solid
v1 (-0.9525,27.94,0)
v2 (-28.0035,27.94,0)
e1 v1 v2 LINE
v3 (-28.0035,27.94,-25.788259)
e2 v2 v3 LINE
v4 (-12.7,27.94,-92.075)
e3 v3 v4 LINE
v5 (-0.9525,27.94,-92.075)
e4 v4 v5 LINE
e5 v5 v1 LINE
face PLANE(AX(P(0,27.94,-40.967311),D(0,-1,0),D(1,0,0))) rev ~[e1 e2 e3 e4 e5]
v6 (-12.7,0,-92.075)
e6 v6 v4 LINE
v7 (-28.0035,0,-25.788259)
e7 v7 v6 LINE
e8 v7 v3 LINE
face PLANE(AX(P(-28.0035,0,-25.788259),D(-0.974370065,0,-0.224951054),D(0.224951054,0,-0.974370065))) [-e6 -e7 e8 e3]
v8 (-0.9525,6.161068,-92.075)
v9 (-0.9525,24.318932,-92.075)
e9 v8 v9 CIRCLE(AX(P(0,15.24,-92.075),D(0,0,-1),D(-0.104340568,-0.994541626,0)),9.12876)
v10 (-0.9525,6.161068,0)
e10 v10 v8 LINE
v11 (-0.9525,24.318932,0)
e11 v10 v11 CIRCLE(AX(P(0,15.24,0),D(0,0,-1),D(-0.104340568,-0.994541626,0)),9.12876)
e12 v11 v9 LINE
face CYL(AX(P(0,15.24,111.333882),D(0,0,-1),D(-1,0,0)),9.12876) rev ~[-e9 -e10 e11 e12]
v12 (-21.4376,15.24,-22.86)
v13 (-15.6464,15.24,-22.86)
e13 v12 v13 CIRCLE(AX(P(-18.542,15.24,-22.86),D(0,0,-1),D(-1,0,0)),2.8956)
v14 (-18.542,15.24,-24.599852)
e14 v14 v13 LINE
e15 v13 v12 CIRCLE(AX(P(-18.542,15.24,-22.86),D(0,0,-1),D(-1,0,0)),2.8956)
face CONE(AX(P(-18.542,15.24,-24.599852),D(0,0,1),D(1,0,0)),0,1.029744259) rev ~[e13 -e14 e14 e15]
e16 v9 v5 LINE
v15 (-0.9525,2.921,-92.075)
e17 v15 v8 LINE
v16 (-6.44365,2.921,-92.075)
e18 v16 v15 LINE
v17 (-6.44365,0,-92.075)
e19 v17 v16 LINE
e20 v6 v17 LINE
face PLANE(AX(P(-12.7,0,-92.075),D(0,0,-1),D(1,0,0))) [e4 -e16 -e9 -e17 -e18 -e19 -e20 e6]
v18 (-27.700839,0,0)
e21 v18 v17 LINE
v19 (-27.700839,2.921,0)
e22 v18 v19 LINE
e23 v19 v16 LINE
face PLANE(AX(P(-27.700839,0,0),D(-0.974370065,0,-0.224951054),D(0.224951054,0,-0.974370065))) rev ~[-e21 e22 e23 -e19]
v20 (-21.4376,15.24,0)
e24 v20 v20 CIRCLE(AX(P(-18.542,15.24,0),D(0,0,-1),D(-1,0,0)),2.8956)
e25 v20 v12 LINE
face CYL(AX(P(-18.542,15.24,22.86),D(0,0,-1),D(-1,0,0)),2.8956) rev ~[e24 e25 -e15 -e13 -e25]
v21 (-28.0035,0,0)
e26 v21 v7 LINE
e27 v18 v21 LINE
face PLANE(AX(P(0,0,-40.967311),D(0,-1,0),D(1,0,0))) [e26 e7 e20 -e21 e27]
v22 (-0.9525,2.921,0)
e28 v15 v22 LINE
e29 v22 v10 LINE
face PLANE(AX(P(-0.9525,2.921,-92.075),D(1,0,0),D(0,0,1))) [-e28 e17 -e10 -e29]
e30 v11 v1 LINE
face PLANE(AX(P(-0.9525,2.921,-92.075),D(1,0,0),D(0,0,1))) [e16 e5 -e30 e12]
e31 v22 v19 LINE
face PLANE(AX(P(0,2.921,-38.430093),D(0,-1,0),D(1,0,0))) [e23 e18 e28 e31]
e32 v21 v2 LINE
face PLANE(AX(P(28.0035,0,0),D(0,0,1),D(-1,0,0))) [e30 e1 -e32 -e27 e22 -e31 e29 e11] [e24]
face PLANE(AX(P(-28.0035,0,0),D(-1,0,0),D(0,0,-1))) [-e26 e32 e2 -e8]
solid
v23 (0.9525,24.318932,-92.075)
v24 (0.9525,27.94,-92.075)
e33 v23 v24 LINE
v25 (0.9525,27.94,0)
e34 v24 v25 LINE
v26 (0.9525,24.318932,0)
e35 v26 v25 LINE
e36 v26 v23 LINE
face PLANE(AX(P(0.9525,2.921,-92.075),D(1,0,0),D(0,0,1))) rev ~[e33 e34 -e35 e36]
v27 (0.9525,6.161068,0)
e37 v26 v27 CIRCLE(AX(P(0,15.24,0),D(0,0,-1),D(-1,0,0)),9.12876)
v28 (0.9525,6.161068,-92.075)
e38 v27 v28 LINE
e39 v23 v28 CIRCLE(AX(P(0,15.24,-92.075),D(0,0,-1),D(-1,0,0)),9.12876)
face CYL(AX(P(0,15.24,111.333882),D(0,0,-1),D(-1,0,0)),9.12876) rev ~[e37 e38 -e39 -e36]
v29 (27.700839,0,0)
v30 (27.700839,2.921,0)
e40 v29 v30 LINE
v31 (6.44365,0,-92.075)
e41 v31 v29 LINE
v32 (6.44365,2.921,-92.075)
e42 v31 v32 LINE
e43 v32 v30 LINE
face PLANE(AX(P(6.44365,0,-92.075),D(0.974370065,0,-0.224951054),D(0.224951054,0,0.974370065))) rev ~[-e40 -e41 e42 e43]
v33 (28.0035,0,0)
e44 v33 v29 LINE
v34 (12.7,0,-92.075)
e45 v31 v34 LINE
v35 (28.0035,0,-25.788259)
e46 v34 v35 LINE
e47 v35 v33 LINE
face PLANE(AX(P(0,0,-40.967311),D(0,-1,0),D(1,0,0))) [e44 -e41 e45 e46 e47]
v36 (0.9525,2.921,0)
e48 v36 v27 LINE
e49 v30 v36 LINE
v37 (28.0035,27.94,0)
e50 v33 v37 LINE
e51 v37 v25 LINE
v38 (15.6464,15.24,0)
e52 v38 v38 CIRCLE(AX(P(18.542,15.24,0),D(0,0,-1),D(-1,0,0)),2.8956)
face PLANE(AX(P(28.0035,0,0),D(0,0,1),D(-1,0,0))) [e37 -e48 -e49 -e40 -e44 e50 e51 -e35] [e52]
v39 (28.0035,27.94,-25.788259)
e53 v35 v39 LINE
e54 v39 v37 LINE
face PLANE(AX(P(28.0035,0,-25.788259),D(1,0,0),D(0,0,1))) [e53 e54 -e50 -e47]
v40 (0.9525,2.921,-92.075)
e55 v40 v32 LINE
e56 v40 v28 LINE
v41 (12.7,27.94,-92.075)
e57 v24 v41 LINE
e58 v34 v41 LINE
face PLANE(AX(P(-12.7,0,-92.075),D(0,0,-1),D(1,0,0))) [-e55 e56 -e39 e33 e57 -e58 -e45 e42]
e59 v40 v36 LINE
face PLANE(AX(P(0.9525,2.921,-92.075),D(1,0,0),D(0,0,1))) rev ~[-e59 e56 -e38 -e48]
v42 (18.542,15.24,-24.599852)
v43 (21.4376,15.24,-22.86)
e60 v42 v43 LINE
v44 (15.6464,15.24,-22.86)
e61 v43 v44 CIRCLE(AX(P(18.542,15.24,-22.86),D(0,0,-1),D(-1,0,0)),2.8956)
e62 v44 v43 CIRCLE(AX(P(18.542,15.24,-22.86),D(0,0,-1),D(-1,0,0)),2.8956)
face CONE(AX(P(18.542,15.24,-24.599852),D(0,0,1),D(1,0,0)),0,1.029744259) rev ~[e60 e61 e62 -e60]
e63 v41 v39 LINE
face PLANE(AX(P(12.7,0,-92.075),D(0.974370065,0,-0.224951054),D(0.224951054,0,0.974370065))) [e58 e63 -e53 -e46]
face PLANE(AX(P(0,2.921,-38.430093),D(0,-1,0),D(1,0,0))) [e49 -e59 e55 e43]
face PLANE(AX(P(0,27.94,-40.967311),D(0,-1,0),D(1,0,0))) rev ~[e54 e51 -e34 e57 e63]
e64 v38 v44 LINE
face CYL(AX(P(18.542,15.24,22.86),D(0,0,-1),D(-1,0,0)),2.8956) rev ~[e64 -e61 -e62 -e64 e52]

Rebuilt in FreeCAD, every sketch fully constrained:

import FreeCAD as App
import Part
import Sketcher
from FreeCAD import Vector
Q = App.Units.Quantity


def add_polygon(sketch, points):
    """Adds a closed chain of lines whose ends are joined by coincident constraints."""
    first, n = sketch.GeometryCount, len(points)
    for a, b in zip(points, points[1:] + points[:1]):
        sketch.addGeometry(Part.LineSegment(App.Vector(*a, 0), App.Vector(*b, 0)), False)
    for i in range(n):
        sketch.addConstraint(Sketcher.Constraint("Coincident", first + i, 2, first + (i + 1) % n, 1))

doc = App.newDocument("Part")
body = doc.addObject("PartDesign::Body", "Body")
body.AllowCompound = True

sketch1 = body.newObject("Sketcher::SketchObject", "Sketch")
sketch1.AttachmentSupport = (doc.getObject("XZ_Plane"), [""])
sketch1.MapMode = "FlatFace"
add_polygon(sketch1, [(28, 0), (-28, 0), (-28, -26), (-13, -92), (13, -92), (28, -26)])
sketch1.addConstraint(Sketcher.Constraint("Horizontal", 0))
sketch1.addConstraint(Sketcher.Constraint("Vertical", 1))
sketch1.addConstraint(Sketcher.Constraint("Horizontal", 3))
sketch1.addConstraint(Sketcher.Constraint("Vertical", 5))
sketch1.addConstraint(Sketcher.Constraint("Symmetric", 0, 2, 5, 2, -1, 1))
sketch1.addConstraint(Sketcher.Constraint("Horizontal", 1, 2, 4, 2))
sketch1.addConstraint(Sketcher.Constraint("Equal", 2, 4))
sketch1.addConstraint(Sketcher.Constraint("DistanceX", 3, 1, 3, 2, Q("1 in")))
sketch1.addConstraint(Sketcher.Constraint("Angle", 2, Q("-77 deg")))
sketch1.addConstraint(Sketcher.Constraint("DistanceX", 0, 2, 0, 1, Q("2.205 in")))
sketch1.addConstraint(Sketcher.Constraint("DistanceY", 2, 2, -1, 1, Q("3.625 in")))
pad1 = body.newObject("PartDesign::Pad", "Pad")
pad1.Profile = sketch1
pad1.Length = Q("1.1 in")
pad1.Reversed = True

sketch2 = body.newObject("Sketcher::SketchObject", "Sketch001")
sketch2.AttachmentSupport = (doc.getObject("XZ_Plane"), [""])
sketch2.MapMode = "FlatFace"
add_polygon(sketch2, [(-28, 0), (-6, -92), (6, -92), (28, 0)])
sketch2.addConstraint(Sketcher.Constraint("Horizontal", 1))
sketch2.addConstraint(Sketcher.Constraint("Horizontal", 3))
sketch2.addConstraint(Sketcher.Constraint("Symmetric", 2, 2, 3, 2, -1, 1))
sketch2.addConstraint(Sketcher.Constraint("Equal", 0, 2))
sketch2.addConstraint(Sketcher.Constraint("Angle", 0, Q("-77 deg")))
sketch2.addConstraint(Sketcher.Constraint("DistanceY", 0, 2, -1, 1, Q("3.625 in")))
sketch2.addConstraint(Sketcher.Constraint("DistanceX", 1, 1, 1, 2, Q("12.8873 mm")))
pocket1 = body.newObject("PartDesign::Pocket", "Pocket")
pocket1.Profile = sketch2
pocket1.Length = Q("0.115 in")

sketch3 = body.newObject("Sketcher::SketchObject", "Sketch002")
sketch3.AttachmentSupport = (doc.getObject("XY_Plane"), [""])
sketch3.MapMode = "FlatFace"
sketch3.addGeometry(Part.Circle(Vector(-18.5, 15.2, 0), Vector(0, 0, 1), 2.9), False)
sketch3.addGeometry(Part.Circle(Vector(18.5, 15.2, 0), Vector(0, 0, 1), 2.9), False)
sketch3.addConstraint(Sketcher.Constraint("Equal", 0, 1))
sketch3.addConstraint(Sketcher.Constraint("Symmetric", 0, 3, 1, 3, -2))
sketch3.addConstraint(Sketcher.Constraint("Diameter", 0, Q("0.228 in")))
sketch3.addConstraint(Sketcher.Constraint("DistanceY", -1, 1, 0, 3, Q("0.6 in")))
sketch3.addConstraint(Sketcher.Constraint("DistanceX", 0, 3, -1, 1, Q("0.73 in")))
doc.recompute()
hole = body.newObject("PartDesign::Hole", "Hole")
hole.Profile = sketch3
hole.ThreadType = "None"
hole.Diameter = Q("0.228 in")
hole.DepthType = "Dimension"
hole.Depth = Q("0.9 in")
hole.DrillPoint = "Angled"
hole.DrillPointAngle = 118

sketch4 = body.newObject("Sketcher::SketchObject", "Sketch003")
sketch4.AttachmentSupport = (doc.getObject("XY_Plane"), [""])
sketch4.MapMode = "FlatFace"
sketch4.addGeometry(Part.Circle(Vector(0, 15, 0), Vector(0, 0, 1), 9), False)
sketch4.addConstraint(Sketcher.Constraint("PointOnObject", 0, 3, -2))
sketch4.addConstraint(Sketcher.Constraint("Diameter", 0, Q("0.7188 in")))
sketch4.addConstraint(Sketcher.Constraint("DistanceY", -1, 1, 0, 3, Q("0.6 in")))
doc.recompute()
hole2 = body.newObject("PartDesign::Hole", "Hole001")
hole2.Profile = sketch4
hole2.ThreadType = "None"
hole2.Diameter = Q("0.7188 in")
hole2.DepthType = "ThroughAll"

sketch5 = body.newObject("Sketcher::SketchObject", "Sketch004")
sketch5.AttachmentSupport = (doc.getObject("XZ_Plane"), [""])
sketch5.MapMode = "FlatFace"
sketch5.AttachmentOffset = App.Placement(Vector(0, 0, -0.115 * 25.4), App.Rotation())
add_polygon(sketch5, [(-1, 0), (-1, -92.1), (1, -92.1), (1, 0)])
sketch5.addConstraint(Sketcher.Constraint("Vertical", 0))
sketch5.addConstraint(Sketcher.Constraint("Horizontal", 1))
sketch5.addConstraint(Sketcher.Constraint("Vertical", 2))
sketch5.addConstraint(Sketcher.Constraint("Horizontal", 3))
sketch5.addConstraint(Sketcher.Constraint("Symmetric", 2, 2, 3, 2, -1, 1))
sketch5.addConstraint(Sketcher.Constraint("DistanceX", 1, 1, 1, 2, Q("0.075 in")))
sketch5.addConstraint(Sketcher.Constraint("DistanceY", 0, 2, 0, 1, Q("3.625 in")))
pocket2 = body.newObject("PartDesign::Pocket", "Pocket001")
pocket2.Profile = sketch5
pocket2.Type = "ThroughAll"

doc.recompute()
